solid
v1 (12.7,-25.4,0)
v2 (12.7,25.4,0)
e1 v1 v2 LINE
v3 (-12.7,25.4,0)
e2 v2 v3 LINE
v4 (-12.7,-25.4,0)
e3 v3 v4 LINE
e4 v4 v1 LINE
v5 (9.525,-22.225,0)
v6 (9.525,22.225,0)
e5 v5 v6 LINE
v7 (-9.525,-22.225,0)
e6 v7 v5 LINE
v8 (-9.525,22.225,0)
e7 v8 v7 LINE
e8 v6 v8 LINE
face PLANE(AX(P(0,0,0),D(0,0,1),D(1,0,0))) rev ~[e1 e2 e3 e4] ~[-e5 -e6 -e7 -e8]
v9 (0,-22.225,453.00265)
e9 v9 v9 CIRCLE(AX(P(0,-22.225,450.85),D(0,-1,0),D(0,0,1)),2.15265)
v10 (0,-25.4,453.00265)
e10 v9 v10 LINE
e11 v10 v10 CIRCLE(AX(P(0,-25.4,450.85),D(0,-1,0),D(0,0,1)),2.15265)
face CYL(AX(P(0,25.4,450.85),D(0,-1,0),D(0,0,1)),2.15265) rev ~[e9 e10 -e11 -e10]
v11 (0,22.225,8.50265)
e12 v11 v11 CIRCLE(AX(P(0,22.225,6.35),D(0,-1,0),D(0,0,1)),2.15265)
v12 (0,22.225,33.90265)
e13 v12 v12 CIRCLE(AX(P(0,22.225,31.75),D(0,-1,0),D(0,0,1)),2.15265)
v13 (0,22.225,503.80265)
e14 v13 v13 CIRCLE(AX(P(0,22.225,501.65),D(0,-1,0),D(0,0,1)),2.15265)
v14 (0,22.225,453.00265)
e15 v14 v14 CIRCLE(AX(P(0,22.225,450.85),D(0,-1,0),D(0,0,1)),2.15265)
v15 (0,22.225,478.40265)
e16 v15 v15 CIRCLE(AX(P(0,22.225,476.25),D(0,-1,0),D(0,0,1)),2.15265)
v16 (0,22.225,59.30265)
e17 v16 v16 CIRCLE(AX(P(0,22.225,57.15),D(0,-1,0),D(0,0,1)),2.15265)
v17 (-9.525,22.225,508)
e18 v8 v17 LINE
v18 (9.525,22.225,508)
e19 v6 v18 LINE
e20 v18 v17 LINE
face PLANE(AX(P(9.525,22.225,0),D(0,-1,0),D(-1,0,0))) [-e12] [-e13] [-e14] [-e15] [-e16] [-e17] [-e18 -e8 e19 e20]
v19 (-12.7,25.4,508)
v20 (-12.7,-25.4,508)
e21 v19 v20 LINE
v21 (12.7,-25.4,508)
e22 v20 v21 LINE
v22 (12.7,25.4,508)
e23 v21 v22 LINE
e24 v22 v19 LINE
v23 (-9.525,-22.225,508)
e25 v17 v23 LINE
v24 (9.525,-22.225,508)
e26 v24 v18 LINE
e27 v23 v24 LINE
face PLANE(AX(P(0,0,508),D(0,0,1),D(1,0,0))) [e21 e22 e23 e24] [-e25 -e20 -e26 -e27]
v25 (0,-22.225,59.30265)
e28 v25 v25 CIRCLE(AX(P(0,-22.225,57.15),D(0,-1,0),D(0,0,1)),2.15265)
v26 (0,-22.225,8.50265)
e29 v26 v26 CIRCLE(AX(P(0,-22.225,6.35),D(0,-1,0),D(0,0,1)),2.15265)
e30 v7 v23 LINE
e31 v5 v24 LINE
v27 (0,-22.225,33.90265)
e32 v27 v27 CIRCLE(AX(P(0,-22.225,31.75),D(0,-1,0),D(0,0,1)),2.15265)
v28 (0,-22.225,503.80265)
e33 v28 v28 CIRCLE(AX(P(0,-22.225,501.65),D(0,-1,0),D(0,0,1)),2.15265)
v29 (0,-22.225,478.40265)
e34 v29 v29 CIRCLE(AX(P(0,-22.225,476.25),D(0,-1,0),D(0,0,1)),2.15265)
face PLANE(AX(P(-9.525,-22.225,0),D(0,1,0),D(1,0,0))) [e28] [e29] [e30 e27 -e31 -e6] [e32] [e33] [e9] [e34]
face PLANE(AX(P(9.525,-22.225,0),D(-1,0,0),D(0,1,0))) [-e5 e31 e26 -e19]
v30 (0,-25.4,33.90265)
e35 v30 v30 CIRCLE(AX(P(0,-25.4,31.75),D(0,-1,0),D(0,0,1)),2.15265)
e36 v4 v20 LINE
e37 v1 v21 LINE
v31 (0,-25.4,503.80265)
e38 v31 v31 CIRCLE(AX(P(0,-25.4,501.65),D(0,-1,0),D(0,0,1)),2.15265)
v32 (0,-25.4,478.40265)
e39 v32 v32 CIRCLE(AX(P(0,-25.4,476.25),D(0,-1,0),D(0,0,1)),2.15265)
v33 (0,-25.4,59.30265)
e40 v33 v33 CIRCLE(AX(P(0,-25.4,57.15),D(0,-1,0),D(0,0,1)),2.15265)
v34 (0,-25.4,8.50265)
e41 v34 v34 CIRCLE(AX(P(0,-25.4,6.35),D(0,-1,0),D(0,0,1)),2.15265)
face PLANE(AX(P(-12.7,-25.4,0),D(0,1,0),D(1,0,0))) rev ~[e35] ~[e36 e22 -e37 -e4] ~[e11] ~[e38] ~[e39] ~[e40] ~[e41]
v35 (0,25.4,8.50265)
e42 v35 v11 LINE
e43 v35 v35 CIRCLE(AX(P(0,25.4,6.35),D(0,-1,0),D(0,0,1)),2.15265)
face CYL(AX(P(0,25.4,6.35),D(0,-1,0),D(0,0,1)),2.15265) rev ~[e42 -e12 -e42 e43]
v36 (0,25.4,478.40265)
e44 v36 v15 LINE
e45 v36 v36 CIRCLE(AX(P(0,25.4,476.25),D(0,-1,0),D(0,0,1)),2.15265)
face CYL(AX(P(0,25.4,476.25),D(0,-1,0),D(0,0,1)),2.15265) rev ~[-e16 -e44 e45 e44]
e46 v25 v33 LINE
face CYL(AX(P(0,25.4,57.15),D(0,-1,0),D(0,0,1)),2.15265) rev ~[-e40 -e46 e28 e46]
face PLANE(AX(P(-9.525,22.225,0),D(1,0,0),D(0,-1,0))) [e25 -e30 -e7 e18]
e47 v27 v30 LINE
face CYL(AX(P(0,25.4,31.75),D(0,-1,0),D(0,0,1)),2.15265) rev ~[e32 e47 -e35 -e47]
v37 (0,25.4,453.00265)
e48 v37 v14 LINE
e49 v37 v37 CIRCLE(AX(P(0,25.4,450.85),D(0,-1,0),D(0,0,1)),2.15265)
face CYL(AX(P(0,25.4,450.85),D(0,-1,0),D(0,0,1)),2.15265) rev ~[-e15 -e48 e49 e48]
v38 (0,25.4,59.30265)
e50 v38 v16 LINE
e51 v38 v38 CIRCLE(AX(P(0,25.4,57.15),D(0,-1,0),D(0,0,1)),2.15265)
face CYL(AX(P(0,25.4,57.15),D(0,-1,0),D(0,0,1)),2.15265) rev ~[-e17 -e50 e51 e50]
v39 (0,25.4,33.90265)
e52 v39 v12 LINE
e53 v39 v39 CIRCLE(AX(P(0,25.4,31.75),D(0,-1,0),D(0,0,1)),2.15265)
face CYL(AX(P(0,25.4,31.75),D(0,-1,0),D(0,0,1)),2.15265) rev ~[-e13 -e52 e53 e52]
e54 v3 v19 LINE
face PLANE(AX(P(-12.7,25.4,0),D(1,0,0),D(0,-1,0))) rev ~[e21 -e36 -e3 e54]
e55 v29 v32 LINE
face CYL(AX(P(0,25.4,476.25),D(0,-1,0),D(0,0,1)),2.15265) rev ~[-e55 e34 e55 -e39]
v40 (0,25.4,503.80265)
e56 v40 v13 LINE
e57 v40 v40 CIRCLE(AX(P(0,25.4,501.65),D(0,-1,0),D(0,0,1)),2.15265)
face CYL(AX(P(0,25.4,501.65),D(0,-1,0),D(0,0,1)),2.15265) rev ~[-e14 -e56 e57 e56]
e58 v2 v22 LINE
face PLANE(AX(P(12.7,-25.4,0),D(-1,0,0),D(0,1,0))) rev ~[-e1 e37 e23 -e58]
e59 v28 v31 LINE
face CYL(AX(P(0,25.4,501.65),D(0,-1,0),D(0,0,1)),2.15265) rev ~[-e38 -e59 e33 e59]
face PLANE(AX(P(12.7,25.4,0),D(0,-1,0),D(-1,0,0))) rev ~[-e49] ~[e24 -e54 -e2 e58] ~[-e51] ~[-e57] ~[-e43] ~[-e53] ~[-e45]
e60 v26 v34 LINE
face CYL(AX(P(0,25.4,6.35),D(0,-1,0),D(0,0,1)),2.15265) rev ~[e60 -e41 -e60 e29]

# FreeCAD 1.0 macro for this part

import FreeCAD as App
import Part
import Sketcher

V = App.Vector
Q = App.Units.Quantity

doc = App.newDocument("Part")
body = doc.addObject("PartDesign::Body", "Body")

# Sketch on XY plane
sketch1 = body.newObject("Sketcher::SketchObject", "Sketch")
sketch1.AttachmentSupport = (doc.getObject("XY_Plane"), [""])
sketch1.MapMode = "FlatFace"
sketch1.addGeometry([
    Part.LineSegment(V(-13, 25, 0), V(-13, -25, 0)),  # 0
    Part.LineSegment(V(-13, -25, 0), V(13, -25, 0)),  # 1
    Part.LineSegment(V(13, -25, 0), V(13, 25, 0)),  # 2
    Part.LineSegment(V(13, 25, 0), V(-13, 25, 0)),  # 3
    Part.LineSegment(V(10, -22, 0), V(-10, -22, 0)),  # 4
    Part.LineSegment(V(-10, -22, 0), V(-10, 22, 0)),  # 5
    Part.LineSegment(V(-10, 22, 0), V(10, 22, 0)),  # 6
    Part.LineSegment(V(10, 22, 0), V(10, -22, 0)),  # 7
], False)
sketch1.addConstraint([
    Sketcher.Constraint("Coincident", 0, 2, 1, 1),
    Sketcher.Constraint("Coincident", 1, 2, 2, 1),
    Sketcher.Constraint("Coincident", 2, 2, 3, 1),
    Sketcher.Constraint("Coincident", 3, 2, 0, 1),
    Sketcher.Constraint("Coincident", 4, 2, 5, 1),
    Sketcher.Constraint("Coincident", 5, 2, 6, 1),
    Sketcher.Constraint("Coincident", 6, 2, 7, 1),
    Sketcher.Constraint("Coincident", 7, 2, 4, 1),
    Sketcher.Constraint("Vertical", 0),
    Sketcher.Constraint("Horizontal", 1),
    Sketcher.Constraint("Vertical", 2),
    Sketcher.Constraint("Horizontal", 3),
    Sketcher.Constraint("Horizontal", 4),
    Sketcher.Constraint("Vertical", 5),
    Sketcher.Constraint("Horizontal", 6),
    Sketcher.Constraint("Vertical", 7),
    Sketcher.Constraint("Symmetric", 0, 2, 2, 2, -1, 1),
    Sketcher.Constraint("Symmetric", 4, 2, 6, 2, -1, 1),
    Sketcher.Constraint("DistanceX", 1, 1, 1, 2, Q("1 in")),
    Sketcher.Constraint("DistanceY", 0, 2, 0, 1, Q("2 in")),
    Sketcher.Constraint("DistanceX", 0, 2, 4, 2, Q("0.125 in")),
    Sketcher.Constraint("DistanceY", 0, 2, 4, 2, Q("0.125 in")),
])
pad1 = body.newObject("PartDesign::Pad", "Pad")
pad1.Profile = sketch1
pad1.Length = Q("20 in")

# Sketch on XZ plane
sketch2 = body.newObject("Sketcher::SketchObject", "Sketch001")
sketch2.AttachmentSupport = (doc.getObject("XZ_Plane"), [""])
sketch2.MapMode = "FlatFace"
sketch2.AttachmentOffset = App.Placement(V(0, 0, -1 * 25.4), App.Rotation())
sketch2.addGeometry([
    Part.Circle(V(0, 501.6, 0), V(0, 0, 1), 2.2),  # 0
    Part.Circle(V(0, 476.2, 0), V(0, 0, 1), 2.2),  # 1
    Part.Circle(V(0, 450.9, 0), V(0, 0, 1), 2.2),  # 2
    Part.Circle(V(0, 6.3, 0), V(0, 0, 1), 2.2),  # 3
    Part.Circle(V(0, 31.8, 0), V(0, 0, 1), 2.2),  # 4
    Part.Circle(V(0, 57.1, 0), V(0, 0, 1), 2.2),  # 5
], False)
sketch2.addConstraint([
    Sketcher.Constraint("Equal", 0, 1),
    Sketcher.Constraint("Equal", 1, 2),
    Sketcher.Constraint("Equal", 2, 3),
    Sketcher.Constraint("Equal", 3, 4),
    Sketcher.Constraint("Equal", 4, 5),
    Sketcher.Constraint("PointOnObject", 0, 3, -2),
    Sketcher.Constraint("PointOnObject", 1, 3, -2),
    Sketcher.Constraint("PointOnObject", 2, 3, -2),
    Sketcher.Constraint("PointOnObject", 3, 3, -2),
    Sketcher.Constraint("PointOnObject", 4, 3, -2),
    Sketcher.Constraint("PointOnObject", 5, 3, -2),
    Sketcher.Constraint("DistanceY", 1, 3, 0, 3, Q("1 in")),
    Sketcher.Constraint("DistanceY", 2, 3, 1, 3, Q("1 in")),
    Sketcher.Constraint("DistanceY", 3, 3, 4, 3, Q("1 in")),
    Sketcher.Constraint("DistanceY", 4, 3, 5, 3, Q("1 in")),
    Sketcher.Constraint("Diameter", 0, Q("0.1695 in")),
    Sketcher.Constraint("DistanceY", 3, 3, 2, 3, Q("17.5 in")),
    Sketcher.Constraint("DistanceY", -1, 1, 0, 3, Q("19.75 in")),
])
doc.recompute()
hole = body.newObject("PartDesign::Hole", "Hole")
hole.Profile = sketch2
hole.ThreadType = "None"
hole.Diameter = Q("0.1695 in")
hole.DepthType = "Dimension"
hole.Depth = Q("2 in")
hole.DrillPoint = "Angled"
hole.DrillPointAngle = 118
hole.Reversed = True

doc.recompute()
